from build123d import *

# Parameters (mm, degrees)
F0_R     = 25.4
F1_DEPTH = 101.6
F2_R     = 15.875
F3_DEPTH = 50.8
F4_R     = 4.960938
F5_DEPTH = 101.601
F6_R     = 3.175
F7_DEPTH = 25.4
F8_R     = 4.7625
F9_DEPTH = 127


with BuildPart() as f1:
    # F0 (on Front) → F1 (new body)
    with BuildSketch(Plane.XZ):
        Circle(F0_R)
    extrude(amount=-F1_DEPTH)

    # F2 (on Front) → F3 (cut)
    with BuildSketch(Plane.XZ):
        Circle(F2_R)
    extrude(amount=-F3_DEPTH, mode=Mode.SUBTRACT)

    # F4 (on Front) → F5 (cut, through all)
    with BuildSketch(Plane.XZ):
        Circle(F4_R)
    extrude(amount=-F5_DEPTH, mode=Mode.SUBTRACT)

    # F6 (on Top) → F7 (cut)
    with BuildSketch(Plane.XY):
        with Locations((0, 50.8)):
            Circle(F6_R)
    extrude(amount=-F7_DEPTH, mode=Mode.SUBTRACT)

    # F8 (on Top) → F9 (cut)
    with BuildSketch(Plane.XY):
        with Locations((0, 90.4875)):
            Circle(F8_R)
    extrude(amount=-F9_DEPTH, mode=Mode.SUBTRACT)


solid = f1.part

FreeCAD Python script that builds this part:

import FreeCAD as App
import Part
import Sketcher
from FreeCAD import Vector
Q = App.Units.Quantity

doc = App.newDocument("Part")
body = doc.addObject("PartDesign::Body", "Body")

# Sketch on XZ plane
sketch1 = doc.addObject("Sketcher::SketchObject", "Sketch")
body.addObject(sketch1)
sketch1.AttachmentSupport = (doc.XZ_Plane, [""])
sketch1.MapMode = "FlatFace"
sketch1.addGeometry(Part.Circle(Vector(0, 0, 0), Vector(0, 0, 1), 25), False)
sketch1.addConstraint([
    Sketcher.Constraint("Coincident", 0, 3, -1, 1),
    Sketcher.Constraint("Diameter", 0, Q("2 in")),
])
pad1 = doc.addObject("PartDesign::Pad", "Pad")
body.addObject(pad1)
pad1.Profile = sketch1
pad1.Length = Q("4 in")
pad1.Reversed = True

# Sketch on XZ plane
sketch2 = doc.addObject("Sketcher::SketchObject", "Sketch001")
body.addObject(sketch2)
sketch2.AttachmentSupport = (doc.XZ_Plane, [""])
sketch2.MapMode = "FlatFace"
sketch2.addGeometry(Part.Circle(Vector(0, 0, 0), Vector(0, 0, 1), 16), False)
sketch2.addConstraint([
    Sketcher.Constraint("Coincident", 0, 3, -1, 1),
    Sketcher.Constraint("Diameter", 0, Q("1.25 in")),
])
pocket1 = doc.addObject("PartDesign::Pocket", "Pocket")
body.addObject(pocket1)
pocket1.Profile = sketch2
pocket1.Length = Q("2 in")

# Sketch on XZ plane
sketch3 = doc.addObject("Sketcher::SketchObject", "Sketch002")
body.addObject(sketch3)
sketch3.AttachmentSupport = (doc.XZ_Plane, [""])
sketch3.MapMode = "FlatFace"
sketch3.addGeometry(Part.Circle(Vector(0, 0, 0), Vector(0, 0, 1), 5), False)
sketch3.addConstraint([
    Sketcher.Constraint("Coincident", 0, 3, -1, 1),
    Sketcher.Constraint("Diameter", 0, Q("0.390625 in")),
])
pocket2 = doc.addObject("PartDesign::Pocket", "Pocket001")
body.addObject(pocket2)
pocket2.Profile = sketch3
pocket2.Type = "ThroughAll"

# Sketch on XY plane
sketch4 = doc.addObject("Sketcher::SketchObject", "Sketch003")
body.addObject(sketch4)
sketch4.AttachmentSupport = (doc.XY_Plane, [""])
sketch4.MapMode = "FlatFace"
sketch4.addGeometry(Part.Circle(Vector(0, 50.8, 0), Vector(0, 0, 1), 3.2), False)
sketch4.addConstraint([
    Sketcher.Constraint("PointOnObject", 0, 3, -2),
    Sketcher.Constraint("Diameter", 0, Q("0.25 in")),
    Sketcher.Constraint("DistanceY", -1, 1, 0, 3, Q("2 in")),
])
pocket3 = doc.addObject("PartDesign::Pocket", "Pocket002")
body.addObject(pocket3)
pocket3.Profile = sketch4
pocket3.Length = Q("1 in")

# Sketch on XY plane
sketch5 = doc.addObject("Sketcher::SketchObject", "Sketch004")
body.addObject(sketch5)
sketch5.AttachmentSupport = (doc.XY_Plane, [""])
sketch5.MapMode = "FlatFace"
sketch5.addGeometry(Part.Circle(Vector(0, 90.5, 0), Vector(0, 0, 1), 4.8), False)
sketch5.addConstraint([
    Sketcher.Constraint("PointOnObject", 0, 3, -2),
    Sketcher.Constraint("Diameter", 0, Q("0.375 in")),
    Sketcher.Constraint("DistanceY", -1, 1, 0, 3, Q("3.5625 in")),
])
pocket4 = doc.addObject("PartDesign::Pocket", "Pocket003")
body.addObject(pocket4)
pocket4.Profile = sketch5
pocket4.Length = Q("5 in")

doc.recompute()
